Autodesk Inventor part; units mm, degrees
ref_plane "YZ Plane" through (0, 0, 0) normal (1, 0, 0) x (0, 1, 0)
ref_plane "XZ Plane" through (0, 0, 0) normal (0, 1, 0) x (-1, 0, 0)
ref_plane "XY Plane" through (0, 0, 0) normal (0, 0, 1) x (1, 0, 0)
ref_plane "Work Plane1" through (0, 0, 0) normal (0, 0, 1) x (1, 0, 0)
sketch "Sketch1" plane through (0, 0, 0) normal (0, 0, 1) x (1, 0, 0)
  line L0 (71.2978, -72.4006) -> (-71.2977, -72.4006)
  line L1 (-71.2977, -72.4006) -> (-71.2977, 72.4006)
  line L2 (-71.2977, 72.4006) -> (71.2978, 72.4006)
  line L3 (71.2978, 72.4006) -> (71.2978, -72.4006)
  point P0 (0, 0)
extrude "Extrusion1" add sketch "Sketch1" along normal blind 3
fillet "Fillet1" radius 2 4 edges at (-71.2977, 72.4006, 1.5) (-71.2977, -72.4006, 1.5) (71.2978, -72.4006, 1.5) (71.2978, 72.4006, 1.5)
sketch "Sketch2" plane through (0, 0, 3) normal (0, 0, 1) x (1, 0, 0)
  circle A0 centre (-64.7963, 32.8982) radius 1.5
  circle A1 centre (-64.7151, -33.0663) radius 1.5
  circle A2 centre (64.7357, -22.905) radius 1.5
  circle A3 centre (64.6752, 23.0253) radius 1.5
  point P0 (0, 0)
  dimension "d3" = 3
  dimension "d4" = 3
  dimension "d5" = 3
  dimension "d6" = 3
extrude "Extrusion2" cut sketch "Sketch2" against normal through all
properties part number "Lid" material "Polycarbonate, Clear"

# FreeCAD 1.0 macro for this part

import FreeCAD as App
import Part
import Sketcher

V = App.Vector
Q = App.Units.Quantity


def edges_at(feature, points):
    """Names of the edges that pass closest to the given points."""
    edges = feature.Shape.Edges
    near = lambda p: min(range(len(edges)), key=lambda i: edges[i].distToShape(Part.Vertex(*p))[0])
    return sorted({f"Edge{near(p) + 1}" for p in points})


def add_polygon(sketch, points):
    """Adds a closed chain of lines whose ends are joined by coincident constraints."""
    first, n = sketch.GeometryCount, len(points)
    for a, b in zip(points, points[1:] + points[:1]):
        sketch.addGeometry(Part.LineSegment(App.Vector(*a, 0), App.Vector(*b, 0)), False)
    for i in range(n):
        sketch.addConstraint(Sketcher.Constraint("Coincident", first + i, 2, first + (i + 1) % n, 1))

doc = App.newDocument("Part")
body = doc.addObject("PartDesign::Body", "Body")

# Sketch on XY plane
sketch1 = body.newObject("Sketcher::SketchObject", "Sketch")
sketch1.AttachmentSupport = (doc.getObject("XY_Plane"), [""])
sketch1.MapMode = "FlatFace"
add_polygon(sketch1, [(-71, -72), (71, -72), (71, 72), (-71, 72)])  # lines 0-3
sketch1.addConstraint([
    Sketcher.Constraint("Horizontal", 0),
    Sketcher.Constraint("Vertical", 1),
    Sketcher.Constraint("Horizontal", 2),
    Sketcher.Constraint("Vertical", 3),
    Sketcher.Constraint("Symmetric", 0, 2, 2, 2, -1, 1),
    Sketcher.Constraint("DistanceX", 0, 1, 0, 2, Q("142.5955 mm")),
    Sketcher.Constraint("DistanceY", 1, 1, 1, 2, Q("144.8012 mm")),
])
pad1 = body.newObject("PartDesign::Pad", "Pad")
pad1.Profile = sketch1
pad1.Length = 3
doc.recompute()

fillet = body.newObject("PartDesign::Fillet", "Fillet")
fillet.Base = (pad1, edges_at(pad1, [
    (-71.298, 72.401, 1.5),
    (-71.298, -72.401, 1.5),
    (71.298, -72.401, 1.5),
    (71.298, 72.401, 1.5),
]))
fillet.Radius = 2

# Sketch on XY plane
sketch2 = body.newObject("Sketcher::SketchObject", "Sketch001")
sketch2.AttachmentSupport = (doc.getObject("XY_Plane"), [""])
sketch2.MapMode = "FlatFace"
sketch2.AttachmentOffset = App.Placement(V(0, 0, 3), App.Rotation())
sketch2.addGeometry([
    Part.Circle(V(-64.8, 32.9, 0), V(0, 0, 1), 1.5),
    Part.Circle(V(-64.7, -33.1, 0), V(0, 0, 1), 1.5),
    Part.Circle(V(64.7, -22.9, 0), V(0, 0, 1), 1.5),
    Part.Circle(V(64.7, 23, 0), V(0, 0, 1), 1.5),
], False)
sketch2.addConstraint([
    Sketcher.Constraint("Equal", 0, 1),
    Sketcher.Constraint("Equal", 1, 2),
    Sketcher.Constraint("Equal", 2, 3),
    Sketcher.Constraint("Diameter", 0, Q("3 mm")),
    Sketcher.Constraint("DistanceX", 1, 3, -1, 1, Q("64.715 mm")),
    Sketcher.Constraint("DistanceY", 2, 3, -1, 1, Q("22.905 mm")),
    Sketcher.Constraint("DistanceX", 0, 3, 2, 3, Q("129.532 mm")),
    Sketcher.Constraint("DistanceY", 3, 3, 0, 3, Q("9.873 mm")),
    Sketcher.Constraint("DistanceX", 0, 3, -1, 1, Q("64.7963 mm")),
    Sketcher.Constraint("DistanceY", -1, 1, 0, 3, Q("32.8982 mm")),
    Sketcher.Constraint("DistanceY", 1, 3, -1, 1, Q("33.0663 mm")),
    Sketcher.Constraint("DistanceX", -1, 1, 3, 3, Q("64.6752 mm")),
])
pocket1 = body.newObject("PartDesign::Pocket", "Pocket")
pocket1.Profile = sketch2
pocket1.Type = "ThroughAll"

doc.recompute()
